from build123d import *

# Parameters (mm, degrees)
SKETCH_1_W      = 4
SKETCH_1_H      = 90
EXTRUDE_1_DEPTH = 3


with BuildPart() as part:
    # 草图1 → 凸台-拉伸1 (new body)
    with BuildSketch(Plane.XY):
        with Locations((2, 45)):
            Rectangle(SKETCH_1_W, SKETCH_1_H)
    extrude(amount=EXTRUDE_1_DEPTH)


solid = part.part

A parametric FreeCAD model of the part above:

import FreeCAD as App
import Part
import Sketcher
from FreeCAD import Vector
Q = App.Units.Quantity


def add_polygon(sketch, points):
    """Adds a closed chain of lines whose ends are joined by coincident constraints."""
    first, n = sketch.GeometryCount, len(points)
    for a, b in zip(points, points[1:] + points[:1]):
        sketch.addGeometry(Part.LineSegment(App.Vector(*a, 0), App.Vector(*b, 0)), False)
    for i in range(n):
        sketch.addConstraint(Sketcher.Constraint("Coincident", first + i, 2, first + (i + 1) % n, 1))

doc = App.newDocument("Part")
body = doc.addObject("PartDesign::Body", "Body")

sketch1 = body.newObject("Sketcher::SketchObject", "Sketch")
sketch1.AttachmentSupport = (doc.getObject("XY_Plane"), [""])
sketch1.MapMode = "FlatFace"
add_polygon(sketch1, [(0, 90), (0, 0), (4, 0), (4, 90)])
sketch1.addConstraint([
    Sketcher.Constraint("Vertical", 0),
    Sketcher.Constraint("Horizontal", 1),
    Sketcher.Constraint("Vertical", 2),
    Sketcher.Constraint("Horizontal", 3),
    Sketcher.Constraint("Coincident", 0, 2, -1, 1),
    Sketcher.Constraint("DistanceX", 1, 1, 1, 2, Q("4 mm")),
    Sketcher.Constraint("DistanceY", 0, 2, 0, 1, Q("90 mm")),
])
pad1 = body.newObject("PartDesign::Pad", "Pad")
pad1.Profile = sketch1
pad1.Length = 3

doc.recompute()
